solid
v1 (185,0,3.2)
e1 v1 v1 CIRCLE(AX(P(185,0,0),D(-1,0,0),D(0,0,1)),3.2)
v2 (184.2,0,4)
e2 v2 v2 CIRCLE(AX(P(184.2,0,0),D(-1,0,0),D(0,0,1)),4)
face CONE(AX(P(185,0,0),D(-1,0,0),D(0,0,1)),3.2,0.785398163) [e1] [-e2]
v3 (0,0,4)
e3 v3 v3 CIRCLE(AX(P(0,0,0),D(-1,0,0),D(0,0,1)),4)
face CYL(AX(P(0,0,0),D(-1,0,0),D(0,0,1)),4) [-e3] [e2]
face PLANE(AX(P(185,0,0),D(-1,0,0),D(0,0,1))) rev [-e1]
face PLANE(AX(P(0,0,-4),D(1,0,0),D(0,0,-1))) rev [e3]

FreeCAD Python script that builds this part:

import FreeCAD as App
import Part
import Sketcher

V = App.Vector
Q = App.Units.Quantity

doc = App.newDocument("Part")
body = doc.addObject("PartDesign::Body", "Body")

# Sketch on XZ plane
sketch1 = doc.addObject("Sketcher::SketchObject", "Sketch")
body.addObject(sketch1)
sketch1.AttachmentSupport = (doc.XZ_Plane, [""])
sketch1.MapMode = "FlatFace"
sketch1.addGeometry([
    Part.LineSegment(V(0, 0, 0), V(185, 0, 0)),  # 0
    Part.LineSegment(V(185, 0, 0), V(185, -3.2, 0)),  # 1
    Part.LineSegment(V(185, -3.2, 0), V(184.2, -4, 0)),  # 2
    Part.LineSegment(V(184.2, -4, 0), V(0, -4, 0)),  # 3
    Part.LineSegment(V(0, -4, 0), V(0, 0, 0)),  # 4
], False)
sketch1.addConstraint([
    Sketcher.Constraint("Coincident", 0, 2, 1, 1),
    Sketcher.Constraint("Coincident", 1, 2, 2, 1),
    Sketcher.Constraint("Coincident", 2, 2, 3, 1),
    Sketcher.Constraint("Coincident", 3, 2, 4, 1),
    Sketcher.Constraint("Coincident", 4, 2, 0, 1),
    Sketcher.Constraint("Horizontal", 0),
    Sketcher.Constraint("Vertical", 1),
    Sketcher.Constraint("Horizontal", 3),
    Sketcher.Constraint("Vertical", 4),
    Sketcher.Constraint("Coincident", 4, 2, -1, 1),
    Sketcher.Constraint("DistanceX", 0, 1, 0, 2, 185.0),
    Sketcher.Constraint("DistanceY", 4, 1, 4, 2, 4.0),
    Sketcher.Constraint("Angle", 2, Q("-135 deg")),
    Sketcher.Constraint("DistanceX", 3, 2, 3, 1, 184.2),
])
revolution = doc.addObject("PartDesign::Revolution", "Revolution")
body.addObject(revolution)
revolution.Profile = sketch1
revolution.ReferenceAxis = (sketch1, ["H_Axis"])
revolution.Angle = 360

doc.recompute()
